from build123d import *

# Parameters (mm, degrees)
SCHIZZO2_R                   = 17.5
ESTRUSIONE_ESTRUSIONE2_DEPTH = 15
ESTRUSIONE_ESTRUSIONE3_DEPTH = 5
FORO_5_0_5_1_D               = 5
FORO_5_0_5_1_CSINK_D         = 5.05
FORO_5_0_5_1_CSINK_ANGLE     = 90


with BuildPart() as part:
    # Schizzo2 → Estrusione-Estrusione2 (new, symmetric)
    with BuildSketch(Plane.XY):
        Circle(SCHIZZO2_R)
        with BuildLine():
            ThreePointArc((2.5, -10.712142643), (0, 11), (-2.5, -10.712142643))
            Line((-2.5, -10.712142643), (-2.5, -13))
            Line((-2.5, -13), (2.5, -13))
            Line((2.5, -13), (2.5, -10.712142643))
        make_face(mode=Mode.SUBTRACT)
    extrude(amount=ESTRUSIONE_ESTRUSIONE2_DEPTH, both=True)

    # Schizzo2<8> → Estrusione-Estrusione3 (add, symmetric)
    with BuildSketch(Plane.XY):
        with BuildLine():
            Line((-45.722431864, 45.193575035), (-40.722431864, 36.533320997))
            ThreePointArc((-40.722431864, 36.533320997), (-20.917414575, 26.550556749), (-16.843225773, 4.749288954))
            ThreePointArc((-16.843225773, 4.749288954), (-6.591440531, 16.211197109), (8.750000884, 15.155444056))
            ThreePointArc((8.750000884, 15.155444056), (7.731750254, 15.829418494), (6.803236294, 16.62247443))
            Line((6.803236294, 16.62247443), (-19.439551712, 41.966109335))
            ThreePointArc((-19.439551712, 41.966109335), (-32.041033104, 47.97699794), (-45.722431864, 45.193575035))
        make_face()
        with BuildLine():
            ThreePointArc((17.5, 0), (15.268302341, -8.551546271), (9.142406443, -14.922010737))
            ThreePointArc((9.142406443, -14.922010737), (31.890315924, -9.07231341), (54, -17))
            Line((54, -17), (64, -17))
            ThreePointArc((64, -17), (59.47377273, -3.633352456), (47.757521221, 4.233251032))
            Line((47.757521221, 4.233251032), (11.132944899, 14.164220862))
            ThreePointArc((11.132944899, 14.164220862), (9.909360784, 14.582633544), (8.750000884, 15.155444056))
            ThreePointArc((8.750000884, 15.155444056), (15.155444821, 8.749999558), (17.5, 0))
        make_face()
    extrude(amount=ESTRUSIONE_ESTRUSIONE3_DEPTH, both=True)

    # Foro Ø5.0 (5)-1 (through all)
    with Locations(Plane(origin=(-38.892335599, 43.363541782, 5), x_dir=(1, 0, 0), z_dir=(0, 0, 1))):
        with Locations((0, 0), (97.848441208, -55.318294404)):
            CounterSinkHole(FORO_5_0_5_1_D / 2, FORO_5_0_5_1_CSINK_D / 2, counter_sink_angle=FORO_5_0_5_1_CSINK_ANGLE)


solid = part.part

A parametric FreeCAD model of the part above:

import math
import FreeCAD as App
import Part
import Sketcher
from FreeCAD import Vector
Q = App.Units.Quantity

doc = App.newDocument("Part")
body = doc.addObject("PartDesign::Body", "Body")

sketch1 = doc.addObject("Sketcher::SketchObject", "Sketch")
body.addObject(sketch1)
sketch1.AttachmentSupport = (doc.XY_Plane, [""])
sketch1.MapMode = "FlatFace"
sketch1.addGeometry(Part.Circle(Vector(0, 0, 0), Vector(0, 0, 1), 17.5), False)
sketch1.addGeometry(Part.ArcOfCircle(Part.Circle(Vector(0, 0, 0), Vector(0, 0, 1), 11), math.radians(-76.863441), math.radians(256.863441)), False)
sketch1.addGeometry(Part.LineSegment(Vector(2.5, -10.712143, 0), Vector(2.5, -13, 0)), False)
sketch1.addGeometry(Part.LineSegment(Vector(2.5, -13, 0), Vector(-2.5, -13, 0)), False)
sketch1.addGeometry(Part.LineSegment(Vector(-2.5, -13, 0), Vector(-2.5, -10.712143, 0)), False)
sketch1.addConstraint(Sketcher.Constraint("Coincident", 1, 1, 2, 1))
sketch1.addConstraint(Sketcher.Constraint("Coincident", 2, 2, 3, 1))
sketch1.addConstraint(Sketcher.Constraint("Coincident", 3, 2, 4, 1))
sketch1.addConstraint(Sketcher.Constraint("Coincident", 4, 2, 1, 2))
sketch1.addConstraint(Sketcher.Constraint("Vertical", 2))
sketch1.addConstraint(Sketcher.Constraint("Horizontal", 3))
sketch1.addConstraint(Sketcher.Constraint("Vertical", 4))
sketch1.addConstraint(Sketcher.Constraint("Coincident", 0, 3, -1, 1))
sketch1.addConstraint(Sketcher.Constraint("Coincident", 1, 3, -1, 1))
sketch1.addConstraint(Sketcher.Constraint("Horizontal", 1, 1, 4, 2))
sketch1.addConstraint(Sketcher.Constraint("Diameter", 0, Q("35 mm")))
sketch1.addConstraint(Sketcher.Constraint("Radius", 1, Q("11 mm")))
sketch1.addConstraint(Sketcher.Constraint("DistanceX", 3, 2, 3, 1, Q("5 mm")))
sketch1.addConstraint(Sketcher.Constraint("DistanceY", 2, 2, -1, 1, Q("13 mm")))
pad1 = doc.addObject("PartDesign::Pad", "Pad")
body.addObject(pad1)
pad1.Profile = sketch1
pad1.Length = 30
pad1.Midplane = True

sketch2 = doc.addObject("Sketcher::SketchObject", "Sketch001")
body.addObject(sketch2)
sketch2.AttachmentSupport = (doc.XY_Plane, [""])
sketch2.MapMode = "FlatFace"
sketch2.addGeometry(Part.LineSegment(Vector(-45.722432, 45.193575, 0), Vector(-40.722432, 36.533321, 0)), False)
sketch2.addGeometry(Part.ArcOfCircle(Part.Circle(Vector(-40.904977, 11.533987, 0), Vector(0, 0, 1), 25), math.radians(-15.746874), math.radians(89.581634)), False)
sketch2.addGeometry(Part.ArcOfCircle(Part.Circle(Vector(0, 0, 0), Vector(0, 0, 1), 17.5), math.radians(59.999997), math.radians(164.253126)), False)
sketch2.addGeometry(Part.ArcOfCircle(Part.Circle(Vector(13.75, 23.815699, 0), Vector(0, 0, 1), 10), math.radians(-134.001434), math.radians(-119.999994)), False)
sketch2.addGeometry(Part.LineSegment(Vector(6.803236, 16.622474, 0), Vector(-19.439552, 41.966109, 0)), False)
sketch2.addGeometry(Part.ArcOfCircle(Part.Circle(Vector(-34.722432, 26.141016, 0), Vector(0, 0, 1), 22), math.radians(45.998566), math.radians(120)), False)
sketch2.addGeometry(Part.ArcOfCircle(Part.Circle(Vector(0, 0, 0), Vector(0, 0, 1), 17.5), math.radians(-58.505063), math.radians(0)), False)
sketch2.addGeometry(Part.ArcOfCircle(Part.Circle(Vector(30.039335, -49.029464, 0), Vector(0, 0, 1), 40), math.radians(53.2005), math.radians(121.494937)), False)
sketch2.addGeometry(Part.LineSegment(Vector(54, -17, 0), Vector(64, -17, 0)), False)
sketch2.addGeometry(Part.ArcOfCircle(Part.Circle(Vector(42, -17, 0), Vector(0, 0, 1), 22), math.radians(0), math.radians(74.828715)), False)
sketch2.addGeometry(Part.LineSegment(Vector(47.757521, 4.233251, 0), Vector(11.132945, 14.164221, 0)), False)
sketch2.addGeometry(Part.ArcOfCircle(Part.Circle(Vector(13.75, 23.815699, 0), Vector(0, 0, 1), 10), math.radians(-119.999994), math.radians(-105.171285)), False)
sketch2.addGeometry(Part.ArcOfCircle(Part.Circle(Vector(0, 0, 0), Vector(0, 0, 1), 17.5), math.radians(0), math.radians(59.999997)), False)
sketch2.addConstraint(Sketcher.Constraint("Coincident", 0, 2, 1, 2))
sketch2.addConstraint(Sketcher.Constraint("Tangent", 1, 1, 2, 2))
sketch2.addConstraint(Sketcher.Constraint("Tangent", 2, 1, 3, 2))
sketch2.addConstraint(Sketcher.Constraint("Tangent", 3, 1, 4, 1))
sketch2.addConstraint(Sketcher.Constraint("Tangent", 4, 2, 5, 1))
sketch2.addConstraint(Sketcher.Constraint("Coincident", 5, 2, 0, 1))
sketch2.addConstraint(Sketcher.Constraint("Tangent", 6, 1, 7, 2))
sketch2.addConstraint(Sketcher.Constraint("Coincident", 7, 1, 8, 1))
sketch2.addConstraint(Sketcher.Constraint("Coincident", 8, 2, 9, 1))
sketch2.addConstraint(Sketcher.Constraint("Tangent", 9, 2, 10, 1))
sketch2.addConstraint(Sketcher.Constraint("Tangent", 10, 2, 11, 2))
sketch2.addConstraint(Sketcher.Constraint("Tangent", 11, 1, 12, 2))
sketch2.addConstraint(Sketcher.Constraint("Tangent", 12, 1, 6, 2))
sketch2.addConstraint(Sketcher.Constraint("Horizontal", 8))
sketch2.addConstraint(Sketcher.Constraint("Coincident", 2, 3, -1, 1))
sketch2.addConstraint(Sketcher.Constraint("Coincident", 6, 3, -1, 1))
sketch2.addConstraint(Sketcher.Constraint("Coincident", 11, 3, 3, 3))
sketch2.addConstraint(Sketcher.Constraint("Coincident", 11, 1, 2, 1))
sketch2.addConstraint(Sketcher.Constraint("Equal", 5, 9))
sketch2.addConstraint(Sketcher.Constraint("PointOnObject", 12, 1, -1))
sketch2.addConstraint(Sketcher.Constraint("Horizontal", 9, 3, 7, 1))
sketch2.addConstraint(Sketcher.Constraint("Radius", 1, Q("25 mm")))
sketch2.addConstraint(Sketcher.Constraint("Radius", 3, Q("10 mm")))
sketch2.addConstraint(Sketcher.Constraint("Radius", 5, Q("22 mm")))
sketch2.addConstraint(Sketcher.Constraint("Radius", 7, Q("40 mm")))
sketch2.addConstraint(Sketcher.Constraint("Radius", 2, Q("17.5 mm")))
sketch2.addConstraint(Sketcher.Constraint("DistanceX", 8, 1, 8, 2, Q("10 mm")))
sketch2.addConstraint(Sketcher.Constraint("Angle", 0, Q("-60 deg")))
sketch2.addConstraint(Sketcher.Constraint("Distance", 0, Q("10 mm")))
sketch2.addConstraint(Sketcher.Constraint("DistanceX", -1, 1, 9, 3, Q("42 mm")))
sketch2.addConstraint(Sketcher.Constraint("DistanceY", 9, 3, -1, 1, Q("17 mm")))
sketch2.addConstraint(Sketcher.Constraint("DistanceX", 0, 2, 5, 3, Q("6 mm")))
sketch2.addConstraint(Sketcher.Constraint("DistanceX", 2, 1, 3, 3, Q("4.999999 mm")))
sketch2.addConstraint(Sketcher.Constraint("DistanceY", 1, 1, 1, 3, Q("6.784699 mm")))
sketch2.addConstraint(Sketcher.Constraint("Distance", 4, Q("36.48265 mm")))
pad2 = doc.addObject("PartDesign::Pad", "Pad001")
body.addObject(pad2)
pad2.Profile = sketch2
pad2.Length = 10
pad2.Midplane = True

sketch3 = doc.addObject("Sketcher::SketchObject", "Sketch002")
body.addObject(sketch3)
sketch3.AttachmentSupport = (doc.XY_Plane, [""])
sketch3.MapMode = "FlatFace"
sketch3.AttachmentOffset = App.Placement(Vector(0, 0, 5), App.Rotation())
sketch3.addGeometry(Part.Circle(Vector(-38.892336, 43.363542, 0), Vector(0, 0, 1), 2.5), False)
sketch3.addGeometry(Part.Circle(Vector(58.956106, -11.954753, 0), Vector(0, 0, 1), 2.5), False)
sketch3.addConstraint(Sketcher.Constraint("Equal", 0, 1))
sketch3.addConstraint(Sketcher.Constraint("Diameter", 0, Q("5 mm")))
sketch3.addConstraint(Sketcher.Constraint("DistanceY", -1, 1, 0, 3, Q("43.363542 mm")))
sketch3.addConstraint(Sketcher.Constraint("DistanceX", 0, 3, 1, 3, Q("97.848441 mm")))
sketch3.addConstraint(Sketcher.Constraint("DistanceX", 0, 3, -1, 1, Q("38.892336 mm")))
sketch3.addConstraint(Sketcher.Constraint("DistanceY", 1, 3, -1, 1, Q("11.954753 mm")))
doc.recompute()
hole = doc.addObject("PartDesign::Hole", "Hole")
body.addObject(hole)
hole.Profile = sketch3
hole.ThreadType = "None"
hole.Diameter = 5
hole.DepthType = "ThroughAll"
hole.HoleCutType = "Countersink"
hole.HoleCutDiameter = 5.05
hole.HoleCutCountersinkAngle = 90

doc.recompute()
